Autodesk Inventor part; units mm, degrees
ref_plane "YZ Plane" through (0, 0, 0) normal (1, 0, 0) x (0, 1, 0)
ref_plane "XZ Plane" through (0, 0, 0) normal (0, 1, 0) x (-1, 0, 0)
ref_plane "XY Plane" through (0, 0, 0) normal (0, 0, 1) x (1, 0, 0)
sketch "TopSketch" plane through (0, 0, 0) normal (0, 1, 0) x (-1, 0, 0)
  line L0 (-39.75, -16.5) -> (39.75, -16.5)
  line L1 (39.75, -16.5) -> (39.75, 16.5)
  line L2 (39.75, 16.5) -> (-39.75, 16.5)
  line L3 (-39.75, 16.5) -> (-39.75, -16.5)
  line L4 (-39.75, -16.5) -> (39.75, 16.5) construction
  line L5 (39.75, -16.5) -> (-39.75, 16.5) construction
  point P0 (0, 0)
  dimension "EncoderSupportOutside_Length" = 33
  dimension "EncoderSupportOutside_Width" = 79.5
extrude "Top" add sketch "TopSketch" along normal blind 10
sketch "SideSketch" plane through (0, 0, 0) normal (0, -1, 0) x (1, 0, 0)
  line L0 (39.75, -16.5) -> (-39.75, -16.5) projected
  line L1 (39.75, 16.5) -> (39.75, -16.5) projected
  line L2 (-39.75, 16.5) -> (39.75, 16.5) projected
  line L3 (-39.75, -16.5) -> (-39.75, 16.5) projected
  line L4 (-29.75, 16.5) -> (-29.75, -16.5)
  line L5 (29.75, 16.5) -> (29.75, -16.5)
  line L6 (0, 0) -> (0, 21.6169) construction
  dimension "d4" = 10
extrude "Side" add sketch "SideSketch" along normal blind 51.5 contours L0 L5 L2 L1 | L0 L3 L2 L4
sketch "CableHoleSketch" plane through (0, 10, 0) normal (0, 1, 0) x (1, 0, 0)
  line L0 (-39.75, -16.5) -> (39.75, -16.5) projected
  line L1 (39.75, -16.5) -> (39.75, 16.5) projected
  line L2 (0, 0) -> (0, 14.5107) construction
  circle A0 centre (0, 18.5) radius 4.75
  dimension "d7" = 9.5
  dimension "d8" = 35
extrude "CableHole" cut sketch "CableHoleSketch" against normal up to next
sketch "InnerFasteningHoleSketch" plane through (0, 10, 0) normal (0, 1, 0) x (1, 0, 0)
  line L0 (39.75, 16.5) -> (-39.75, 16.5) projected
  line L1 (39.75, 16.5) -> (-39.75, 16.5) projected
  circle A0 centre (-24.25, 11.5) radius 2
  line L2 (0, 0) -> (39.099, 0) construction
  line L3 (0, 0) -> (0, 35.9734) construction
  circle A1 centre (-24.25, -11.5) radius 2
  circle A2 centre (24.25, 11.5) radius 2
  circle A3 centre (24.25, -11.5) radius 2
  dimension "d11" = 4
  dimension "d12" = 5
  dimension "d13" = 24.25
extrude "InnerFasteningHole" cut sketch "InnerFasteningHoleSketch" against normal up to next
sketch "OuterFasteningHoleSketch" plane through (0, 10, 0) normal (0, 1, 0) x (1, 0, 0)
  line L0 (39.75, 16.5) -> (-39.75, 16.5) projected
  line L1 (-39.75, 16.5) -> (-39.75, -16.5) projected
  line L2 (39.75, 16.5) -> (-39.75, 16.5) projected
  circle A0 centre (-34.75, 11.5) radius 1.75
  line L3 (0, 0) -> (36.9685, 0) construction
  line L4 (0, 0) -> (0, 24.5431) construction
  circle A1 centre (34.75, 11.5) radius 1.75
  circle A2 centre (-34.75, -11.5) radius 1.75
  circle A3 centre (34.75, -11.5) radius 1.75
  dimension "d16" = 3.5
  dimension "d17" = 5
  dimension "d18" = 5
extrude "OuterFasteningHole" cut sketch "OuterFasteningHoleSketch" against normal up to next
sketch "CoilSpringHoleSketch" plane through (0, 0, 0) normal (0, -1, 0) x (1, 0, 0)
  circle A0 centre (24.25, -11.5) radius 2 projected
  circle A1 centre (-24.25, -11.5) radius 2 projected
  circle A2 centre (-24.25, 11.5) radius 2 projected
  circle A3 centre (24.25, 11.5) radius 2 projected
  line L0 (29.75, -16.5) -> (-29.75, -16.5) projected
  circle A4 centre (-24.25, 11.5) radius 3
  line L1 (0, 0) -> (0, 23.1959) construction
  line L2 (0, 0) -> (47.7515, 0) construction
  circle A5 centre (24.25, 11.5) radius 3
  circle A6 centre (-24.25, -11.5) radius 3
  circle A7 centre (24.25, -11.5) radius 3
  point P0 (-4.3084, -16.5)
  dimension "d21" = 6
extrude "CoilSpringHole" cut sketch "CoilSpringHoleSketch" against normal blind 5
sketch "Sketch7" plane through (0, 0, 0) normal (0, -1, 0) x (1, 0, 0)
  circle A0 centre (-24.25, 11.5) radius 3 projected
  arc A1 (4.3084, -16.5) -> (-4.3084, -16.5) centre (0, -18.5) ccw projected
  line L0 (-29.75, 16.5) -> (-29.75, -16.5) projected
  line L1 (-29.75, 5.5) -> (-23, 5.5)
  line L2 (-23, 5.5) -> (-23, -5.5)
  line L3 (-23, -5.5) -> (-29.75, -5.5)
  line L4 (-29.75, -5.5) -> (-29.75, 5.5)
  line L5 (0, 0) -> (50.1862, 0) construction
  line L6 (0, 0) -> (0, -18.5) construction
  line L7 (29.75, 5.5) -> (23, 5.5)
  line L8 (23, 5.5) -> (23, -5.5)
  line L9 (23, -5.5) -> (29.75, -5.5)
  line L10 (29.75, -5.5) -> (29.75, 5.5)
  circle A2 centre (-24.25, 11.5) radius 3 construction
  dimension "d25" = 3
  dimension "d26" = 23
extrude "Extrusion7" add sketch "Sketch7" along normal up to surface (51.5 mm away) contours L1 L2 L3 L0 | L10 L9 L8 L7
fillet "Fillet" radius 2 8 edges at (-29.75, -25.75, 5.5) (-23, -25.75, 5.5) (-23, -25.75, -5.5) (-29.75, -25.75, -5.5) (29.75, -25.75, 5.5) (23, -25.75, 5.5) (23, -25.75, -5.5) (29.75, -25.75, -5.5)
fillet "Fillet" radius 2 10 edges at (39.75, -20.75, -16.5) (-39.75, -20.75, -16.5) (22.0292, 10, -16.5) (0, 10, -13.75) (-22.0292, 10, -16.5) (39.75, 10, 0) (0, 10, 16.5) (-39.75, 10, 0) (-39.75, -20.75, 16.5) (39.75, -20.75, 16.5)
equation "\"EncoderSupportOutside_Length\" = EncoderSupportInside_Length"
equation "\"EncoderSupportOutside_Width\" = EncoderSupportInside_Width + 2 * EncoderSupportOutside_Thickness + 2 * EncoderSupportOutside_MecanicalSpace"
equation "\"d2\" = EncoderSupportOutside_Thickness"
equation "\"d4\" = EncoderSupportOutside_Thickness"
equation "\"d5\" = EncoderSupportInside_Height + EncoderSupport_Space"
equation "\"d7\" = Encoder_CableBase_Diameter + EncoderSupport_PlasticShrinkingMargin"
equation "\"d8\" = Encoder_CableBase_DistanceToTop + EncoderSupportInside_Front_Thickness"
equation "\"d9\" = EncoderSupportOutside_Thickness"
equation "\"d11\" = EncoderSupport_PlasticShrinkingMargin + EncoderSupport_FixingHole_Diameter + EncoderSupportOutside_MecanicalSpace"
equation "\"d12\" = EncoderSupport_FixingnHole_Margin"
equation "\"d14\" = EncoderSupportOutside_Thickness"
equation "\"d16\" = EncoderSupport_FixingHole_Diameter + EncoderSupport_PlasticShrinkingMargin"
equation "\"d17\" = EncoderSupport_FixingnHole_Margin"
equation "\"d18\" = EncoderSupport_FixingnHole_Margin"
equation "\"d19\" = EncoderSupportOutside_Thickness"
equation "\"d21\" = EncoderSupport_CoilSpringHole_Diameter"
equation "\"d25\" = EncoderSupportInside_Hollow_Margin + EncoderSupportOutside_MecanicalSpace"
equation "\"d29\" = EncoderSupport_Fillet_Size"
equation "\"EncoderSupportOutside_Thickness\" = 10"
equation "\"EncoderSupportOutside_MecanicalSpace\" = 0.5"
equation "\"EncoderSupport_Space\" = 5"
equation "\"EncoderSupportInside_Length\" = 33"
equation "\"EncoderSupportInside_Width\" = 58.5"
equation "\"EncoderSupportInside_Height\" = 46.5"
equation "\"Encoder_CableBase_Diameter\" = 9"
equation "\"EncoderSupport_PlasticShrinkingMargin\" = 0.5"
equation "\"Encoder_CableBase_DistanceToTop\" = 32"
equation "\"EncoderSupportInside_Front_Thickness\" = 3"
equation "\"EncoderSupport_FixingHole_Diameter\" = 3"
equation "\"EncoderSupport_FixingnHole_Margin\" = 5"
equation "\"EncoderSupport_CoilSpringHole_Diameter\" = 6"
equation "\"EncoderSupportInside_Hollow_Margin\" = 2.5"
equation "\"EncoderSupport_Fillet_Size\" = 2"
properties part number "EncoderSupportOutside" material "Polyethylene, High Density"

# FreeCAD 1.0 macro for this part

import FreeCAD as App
import Part
import Sketcher

V = App.Vector
Q = App.Units.Quantity


def edges_at(feature, points):
    """Names of the edges that pass closest to the given points."""
    edges = feature.Shape.Edges
    near = lambda p: min(range(len(edges)), key=lambda i: edges[i].distToShape(Part.Vertex(*p))[0])
    return sorted({f"Edge{near(p) + 1}" for p in points})


def add_polygon(sketch, points):
    """Adds a closed chain of lines whose ends are joined by coincident constraints."""
    first, n = sketch.GeometryCount, len(points)
    for a, b in zip(points, points[1:] + points[:1]):
        sketch.addGeometry(Part.LineSegment(App.Vector(*a, 0), App.Vector(*b, 0)), False)
    for i in range(n):
        sketch.addConstraint(Sketcher.Constraint("Coincident", first + i, 2, first + (i + 1) % n, 1))

doc = App.newDocument("Part")
body = doc.addObject("PartDesign::Body", "Body")

# Sketch on XZ plane
sketch1 = body.newObject("Sketcher::SketchObject", "Sketch")
sketch1.AttachmentSupport = (doc.getObject("XZ_Plane"), [""])
sketch1.MapMode = "FlatFace"
add_polygon(sketch1, [(40, 16), (40, -16), (-40, -16), (-40, 16)])  # lines 0-3
sketch1.addConstraint(Sketcher.Constraint("Vertical", 0))
sketch1.addConstraint(Sketcher.Constraint("Horizontal", 1))
sketch1.addConstraint(Sketcher.Constraint("Vertical", 2))
sketch1.addConstraint(Sketcher.Constraint("Horizontal", 3))
sketch1.addConstraint(Sketcher.Constraint("Symmetric", 0, 2, 2, 2, -1, 1))
sketch1.addConstraint(Sketcher.Constraint("DistanceY", 0, 2, 0, 1, Q("33 mm")))
sketch1.addConstraint(Sketcher.Constraint("DistanceX", 1, 2, 1, 1, Q("79.5 mm")))
pad1 = body.newObject("PartDesign::Pad", "Pad")
pad1.Profile = sketch1
pad1.Length = 10
pad1.Reversed = True

# Sketch on XZ plane
sketch2 = body.newObject("Sketcher::SketchObject", "Sketch001")
sketch2.AttachmentSupport = (doc.getObject("XZ_Plane"), [""])
sketch2.MapMode = "FlatFace"
add_polygon(sketch2, [(30, -16), (40, -16), (40, 16), (30, 16)])  # lines 0-3
add_polygon(sketch2, [(-40, -16), (-30, -16), (-30, 16), (-40, 16)])  # lines 4-7
sketch2.addConstraint(Sketcher.Constraint("Horizontal", 0))
sketch2.addConstraint(Sketcher.Constraint("Vertical", 1))
sketch2.addConstraint(Sketcher.Constraint("Horizontal", 2))
sketch2.addConstraint(Sketcher.Constraint("Vertical", 3))
sketch2.addConstraint(Sketcher.Constraint("Horizontal", 4))
sketch2.addConstraint(Sketcher.Constraint("Vertical", 5))
sketch2.addConstraint(Sketcher.Constraint("Horizontal", 6))
sketch2.addConstraint(Sketcher.Constraint("Vertical", 7))
sketch2.addConstraint(Sketcher.Constraint("Symmetric", 2, 2, 4, 2, -1, 1))
sketch2.addConstraint(Sketcher.Constraint("Symmetric", 0, 2, 6, 2, -1, 1))
sketch2.addConstraint(Sketcher.Constraint("Horizontal", 3, 2, 4, 2))
sketch2.addConstraint(Sketcher.Constraint("DistanceX", 0, 1, 0, 2, Q("10 mm")))
sketch2.addConstraint(Sketcher.Constraint("DistanceY", 1, 1, 1, 2, Q("33 mm")))
sketch2.addConstraint(Sketcher.Constraint("DistanceX", 4, 2, 3, 2, Q("59.5 mm")))
pad2 = body.newObject("PartDesign::Pad", "Pad001")
pad2.Profile = sketch2
pad2.Length = 51.5

# Sketch on XZ plane
sketch3 = body.newObject("Sketcher::SketchObject", "Sketch002")
sketch3.AttachmentSupport = (doc.getObject("XZ_Plane"), [""])
sketch3.MapMode = "FlatFace"
sketch3.AttachmentOffset = App.Placement(V(0, 0, -10), App.Rotation())
sketch3.addGeometry(Part.Circle(V(0, -18.5, 0), V(0, 0, 1), 4.8), False)
sketch3.addConstraint(Sketcher.Constraint("PointOnObject", 0, 3, -2))
sketch3.addConstraint(Sketcher.Constraint("Diameter", 0, Q("9.5 mm")))
sketch3.addConstraint(Sketcher.Constraint("DistanceY", 0, 3, -1, 1, Q("18.5 mm")))
pocket1 = body.newObject("PartDesign::Pocket", "Pocket")
pocket1.Profile = sketch3
pocket1.Length = 10
pocket1.Reversed = True

# Sketch on XZ plane
sketch4 = body.newObject("Sketcher::SketchObject", "Sketch003")
sketch4.AttachmentSupport = (doc.getObject("XZ_Plane"), [""])
sketch4.MapMode = "FlatFace"
sketch4.AttachmentOffset = App.Placement(V(0, 0, -10), App.Rotation())
sketch4.addGeometry(Part.Circle(V(-24.2, -11.5, 0), V(0, 0, 1), 2), False)
sketch4.addGeometry(Part.Circle(V(-24.2, 11.5, 0), V(0, 0, 1), 2), False)
sketch4.addGeometry(Part.Circle(V(24.2, -11.5, 0), V(0, 0, 1), 2), False)
sketch4.addGeometry(Part.Circle(V(24.2, 11.5, 0), V(0, 0, 1), 2), False)
sketch4.addConstraint(Sketcher.Constraint("Equal", 0, 1))
sketch4.addConstraint(Sketcher.Constraint("Equal", 1, 2))
sketch4.addConstraint(Sketcher.Constraint("Equal", 2, 3))
sketch4.addConstraint(Sketcher.Constraint("Symmetric", 1, 3, 2, 3, -1, 1))
sketch4.addConstraint(Sketcher.Constraint("Symmetric", 0, 3, 3, 3, -1, 1))
sketch4.addConstraint(Sketcher.Constraint("Symmetric", 0, 3, 2, 3, -2))
sketch4.addConstraint(Sketcher.Constraint("Diameter", 0, Q("4 mm")))
sketch4.addConstraint(Sketcher.Constraint("DistanceX", 0, 3, -1, 1, Q("24.25 mm")))
sketch4.addConstraint(Sketcher.Constraint("DistanceY", 0, 3, 1, 3, Q("23 mm")))
pocket2 = body.newObject("PartDesign::Pocket", "Pocket001")
pocket2.Profile = sketch4
pocket2.Type = "UpToFirst"
pocket2.Reversed = True

# Sketch on XZ plane
sketch5 = body.newObject("Sketcher::SketchObject", "Sketch004")
sketch5.AttachmentSupport = (doc.getObject("XZ_Plane"), [""])
sketch5.MapMode = "FlatFace"
sketch5.AttachmentOffset = App.Placement(V(0, 0, -10), App.Rotation())
sketch5.addGeometry(Part.Circle(V(-34.8, -11.5, 0), V(0, 0, 1), 1.8), False)
sketch5.addGeometry(Part.Circle(V(34.8, -11.5, 0), V(0, 0, 1), 1.8), False)
sketch5.addGeometry(Part.Circle(V(-34.8, 11.5, 0), V(0, 0, 1), 1.8), False)
sketch5.addGeometry(Part.Circle(V(34.8, 11.5, 0), V(0, 0, 1), 1.8), False)
sketch5.addConstraint(Sketcher.Constraint("Equal", 0, 1))
sketch5.addConstraint(Sketcher.Constraint("Equal", 1, 2))
sketch5.addConstraint(Sketcher.Constraint("Equal", 2, 3))
sketch5.addConstraint(Sketcher.Constraint("Symmetric", 1, 3, 2, 3, -1, 1))
sketch5.addConstraint(Sketcher.Constraint("Symmetric", 0, 3, 3, 3, -1, 1))
sketch5.addConstraint(Sketcher.Constraint("Symmetric", 0, 3, 1, 3, -2))
sketch5.addConstraint(Sketcher.Constraint("Diameter", 0, Q("3.5 mm")))
sketch5.addConstraint(Sketcher.Constraint("DistanceY", 0, 3, 2, 3, Q("23 mm")))
sketch5.addConstraint(Sketcher.Constraint("DistanceX", 0, 3, 1, 3, Q("69.5 mm")))
pocket3 = body.newObject("PartDesign::Pocket", "Pocket002")
pocket3.Profile = sketch5
pocket3.Length = 61.5
pocket3.Reversed = True

# Sketch on XZ plane
sketch6 = body.newObject("Sketcher::SketchObject", "Sketch005")
sketch6.AttachmentSupport = (doc.getObject("XZ_Plane"), [""])
sketch6.MapMode = "FlatFace"
sketch6.addGeometry(Part.Circle(V(-24.2, 11.5, 0), V(0, 0, 1), 3), False)
sketch6.addGeometry(Part.Circle(V(-24.2, 11.5, 0), V(0, 0, 1), 2), False)
sketch6.addGeometry(Part.Circle(V(24.2, 11.5, 0), V(0, 0, 1), 3), False)
sketch6.addGeometry(Part.Circle(V(24.2, 11.5, 0), V(0, 0, 1), 2), False)
sketch6.addGeometry(Part.Circle(V(-24.2, -11.5, 0), V(0, 0, 1), 3), False)
sketch6.addGeometry(Part.Circle(V(-24.2, -11.5, 0), V(0, 0, 1), 2), False)
sketch6.addGeometry(Part.Circle(V(24.2, -11.5, 0), V(0, 0, 1), 3), False)
sketch6.addGeometry(Part.Circle(V(24.2, -11.5, 0), V(0, 0, 1), 2), False)
sketch6.addConstraint(Sketcher.Constraint("Coincident", 1, 3, 0, 3))
sketch6.addConstraint(Sketcher.Constraint("Coincident", 3, 3, 2, 3))
sketch6.addConstraint(Sketcher.Constraint("Coincident", 5, 3, 4, 3))
sketch6.addConstraint(Sketcher.Constraint("Coincident", 7, 3, 6, 3))
sketch6.addConstraint(Sketcher.Constraint("Equal", 0, 2))
sketch6.addConstraint(Sketcher.Constraint("Equal", 1, 3))
sketch6.addConstraint(Sketcher.Constraint("Equal", 2, 4))
sketch6.addConstraint(Sketcher.Constraint("Equal", 3, 5))
sketch6.addConstraint(Sketcher.Constraint("Equal", 4, 6))
sketch6.addConstraint(Sketcher.Constraint("Equal", 5, 7))
sketch6.addConstraint(Sketcher.Constraint("Symmetric", 2, 3, 4, 3, -1, 1))
sketch6.addConstraint(Sketcher.Constraint("Symmetric", 0, 3, 6, 3, -1, 1))
sketch6.addConstraint(Sketcher.Constraint("Symmetric", 0, 3, 2, 3, -2))
sketch6.addConstraint(Sketcher.Constraint("Diameter", 0, Q("6 mm")))
sketch6.addConstraint(Sketcher.Constraint("Diameter", 1, Q("4 mm")))
sketch6.addConstraint(Sketcher.Constraint("DistanceY", 4, 3, 0, 3, Q("23 mm")))
sketch6.addConstraint(Sketcher.Constraint("DistanceX", 0, 3, 2, 3, Q("48.5 mm")))
pocket4 = body.newObject("PartDesign::Pocket", "Pocket003")
pocket4.Profile = sketch6
pocket4.Length = 5

# Sketch on XZ plane
sketch7 = body.newObject("Sketcher::SketchObject", "Sketch006")
sketch7.AttachmentSupport = (doc.getObject("XZ_Plane"), [""])
sketch7.MapMode = "FlatFace"
add_polygon(sketch7, [(-23, 6), (-30, 6), (-30, -6), (-23, -6)])  # lines 0-3
add_polygon(sketch7, [(30, -6), (30, 6), (23, 6), (23, -6)])  # lines 4-7
sketch7.addConstraint(Sketcher.Constraint("Horizontal", 0))
sketch7.addConstraint(Sketcher.Constraint("Vertical", 1))
sketch7.addConstraint(Sketcher.Constraint("Horizontal", 2))
sketch7.addConstraint(Sketcher.Constraint("Vertical", 3))
sketch7.addConstraint(Sketcher.Constraint("Vertical", 4))
sketch7.addConstraint(Sketcher.Constraint("Horizontal", 5))
sketch7.addConstraint(Sketcher.Constraint("Vertical", 6))
sketch7.addConstraint(Sketcher.Constraint("Horizontal", 7))
sketch7.addConstraint(Sketcher.Constraint("Symmetric", 1, 2, 4, 2, -1, 1))
sketch7.addConstraint(Sketcher.Constraint("Symmetric", 3, 2, 6, 2, -1, 1))
sketch7.addConstraint(Sketcher.Constraint("Horizontal", 3, 2, 4, 2))
sketch7.addConstraint(Sketcher.Constraint("DistanceX", 2, 2, -1, 1, Q("23 mm")))
sketch7.addConstraint(Sketcher.Constraint("DistanceY", 1, 2, 1, 1, Q("11 mm")))
sketch7.addConstraint(Sketcher.Constraint("DistanceX", 0, 2, 0, 1, Q("6.75 mm")))
pad3 = body.newObject("PartDesign::Pad", "Pad002")
pad3.Profile = sketch7
pad3.Length = 51.5
doc.recompute()

fillet = body.newObject("PartDesign::Fillet", "Fillet")
fillet.Base = (pad3, edges_at(pad3, [
    (-29.75, -25.75, 5.5),
    (-23, -25.75, 5.5),
    (-23, -25.75, -5.5),
    (-29.75, -25.75, -5.5),
    (29.75, -25.75, 5.5),
    (23, -25.75, 5.5),
    (23, -25.75, -5.5),
    (29.75, -25.75, -5.5),
]))
fillet.Radius = 2
doc.recompute()

fillet2 = body.newObject("PartDesign::Fillet", "Fillet001")
fillet2.Base = (fillet, edges_at(fillet, [
    (39.75, -20.75, -16.5),
    (-39.75, -20.75, -16.5),
    (22.029, 10, -16.5),
    (0, 10, -13.75),
    (-22.029, 10, -16.5),
    (39.75, 10, 0),
    (0, 10, 16.5),
    (-39.75, 10, 0),
    (-39.75, -20.75, 16.5),
    (39.75, -20.75, 16.5),
]))
fillet2.Radius = 2

doc.recompute()
